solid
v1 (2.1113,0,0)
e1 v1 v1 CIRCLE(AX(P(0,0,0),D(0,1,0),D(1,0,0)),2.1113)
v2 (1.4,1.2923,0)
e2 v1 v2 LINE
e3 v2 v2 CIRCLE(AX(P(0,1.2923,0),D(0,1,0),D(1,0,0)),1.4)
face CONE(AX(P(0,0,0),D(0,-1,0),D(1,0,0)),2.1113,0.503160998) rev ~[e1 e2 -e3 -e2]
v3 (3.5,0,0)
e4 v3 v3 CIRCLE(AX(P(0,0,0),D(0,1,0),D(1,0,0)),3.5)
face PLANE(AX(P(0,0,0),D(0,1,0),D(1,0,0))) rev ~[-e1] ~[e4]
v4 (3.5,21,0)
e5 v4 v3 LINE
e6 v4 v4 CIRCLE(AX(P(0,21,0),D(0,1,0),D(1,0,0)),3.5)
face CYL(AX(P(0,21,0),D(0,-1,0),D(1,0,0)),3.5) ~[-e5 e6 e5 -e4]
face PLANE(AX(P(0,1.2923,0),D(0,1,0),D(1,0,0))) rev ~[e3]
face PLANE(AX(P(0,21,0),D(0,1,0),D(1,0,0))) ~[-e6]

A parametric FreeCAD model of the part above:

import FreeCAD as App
import Part
import Sketcher

V = App.Vector
Q = App.Units.Quantity


def add_polygon(sketch, points):
    """Adds a closed chain of lines whose ends are joined by coincident constraints."""
    first, n = sketch.GeometryCount, len(points)
    for a, b in zip(points, points[1:] + points[:1]):
        sketch.addGeometry(Part.LineSegment(App.Vector(*a, 0), App.Vector(*b, 0)), False)
    for i in range(n):
        sketch.addConstraint(Sketcher.Constraint("Coincident", first + i, 2, first + (i + 1) % n, 1))

doc = App.newDocument("Part")
params = doc.addObject("Spreadsheet::Sheet", "Params")
for row, (alias, value) in enumerate([
    ("sketch1_height", "21 mm"),
    ("sketch1_width", "1.4 mm"),
    ("sketch1_width2", "3.5 mm"),
    ("revolution_angle", "360 deg"),
], start=1):
    params.set(f"A{row}", alias)
    params.set(f"B{row}", "=" + value)
    params.setAlias(f"B{row}", alias)

body = doc.addObject("PartDesign::Body", "Body")

sketch1 = doc.addObject("Sketcher::SketchObject", "Sketch")
body.addObject(sketch1)
sketch1.AttachmentSupport = (doc.XY_Plane, [""])
sketch1.MapMode = "FlatFace"
add_polygon(sketch1, [(0, 21), (0, 1.2923), (1.4, 1.2923), (2.1113, 0), (3.5, 0), (3.5, 21)])
sketch1.addConstraint(Sketcher.Constraint("Vertical", 0))
sketch1.addConstraint(Sketcher.Constraint("Horizontal", 1))
sketch1.addConstraint(Sketcher.Constraint("Horizontal", 3))
sketch1.addConstraint(Sketcher.Constraint("Vertical", 4))
sketch1.addConstraint(Sketcher.Constraint("Horizontal", 5))
sketch1.addConstraint(Sketcher.Constraint("PointOnObject", 0, 2, -2))
sketch1.addConstraint(Sketcher.Constraint("PointOnObject", 2, 2, -1))
sketch1.addConstraint(Sketcher.Constraint("DistanceY", 4, 1, 4, 2, Q("21 mm")))
sketch1.addConstraint(Sketcher.Constraint("DistanceX", 1, 1, 1, 2, Q("1.4 mm")))
sketch1.addConstraint(Sketcher.Constraint("DistanceX", 5, 2, 5, 1, Q("3.5 mm")))
sketch1.addConstraint(Sketcher.Constraint("Angle", 2, Q("-61.171 deg")))
sketch1.addConstraint(Sketcher.Constraint("DistanceX", 3, 1, 3, 2, Q("1.3887 mm")))
sketch1.setExpression("Constraints[13]", "Params.sketch1_height")
sketch1.setExpression("Constraints[14]", "Params.sketch1_width")
sketch1.setExpression("Constraints[15]", "Params.sketch1_width2")
revolution = doc.addObject("PartDesign::Revolution", "Revolution")
body.addObject(revolution)
revolution.Profile = sketch1
revolution.ReferenceAxis = (sketch1, ["V_Axis"])
revolution.setExpression("Angle", "Params.revolution_angle")

doc.recompute()
